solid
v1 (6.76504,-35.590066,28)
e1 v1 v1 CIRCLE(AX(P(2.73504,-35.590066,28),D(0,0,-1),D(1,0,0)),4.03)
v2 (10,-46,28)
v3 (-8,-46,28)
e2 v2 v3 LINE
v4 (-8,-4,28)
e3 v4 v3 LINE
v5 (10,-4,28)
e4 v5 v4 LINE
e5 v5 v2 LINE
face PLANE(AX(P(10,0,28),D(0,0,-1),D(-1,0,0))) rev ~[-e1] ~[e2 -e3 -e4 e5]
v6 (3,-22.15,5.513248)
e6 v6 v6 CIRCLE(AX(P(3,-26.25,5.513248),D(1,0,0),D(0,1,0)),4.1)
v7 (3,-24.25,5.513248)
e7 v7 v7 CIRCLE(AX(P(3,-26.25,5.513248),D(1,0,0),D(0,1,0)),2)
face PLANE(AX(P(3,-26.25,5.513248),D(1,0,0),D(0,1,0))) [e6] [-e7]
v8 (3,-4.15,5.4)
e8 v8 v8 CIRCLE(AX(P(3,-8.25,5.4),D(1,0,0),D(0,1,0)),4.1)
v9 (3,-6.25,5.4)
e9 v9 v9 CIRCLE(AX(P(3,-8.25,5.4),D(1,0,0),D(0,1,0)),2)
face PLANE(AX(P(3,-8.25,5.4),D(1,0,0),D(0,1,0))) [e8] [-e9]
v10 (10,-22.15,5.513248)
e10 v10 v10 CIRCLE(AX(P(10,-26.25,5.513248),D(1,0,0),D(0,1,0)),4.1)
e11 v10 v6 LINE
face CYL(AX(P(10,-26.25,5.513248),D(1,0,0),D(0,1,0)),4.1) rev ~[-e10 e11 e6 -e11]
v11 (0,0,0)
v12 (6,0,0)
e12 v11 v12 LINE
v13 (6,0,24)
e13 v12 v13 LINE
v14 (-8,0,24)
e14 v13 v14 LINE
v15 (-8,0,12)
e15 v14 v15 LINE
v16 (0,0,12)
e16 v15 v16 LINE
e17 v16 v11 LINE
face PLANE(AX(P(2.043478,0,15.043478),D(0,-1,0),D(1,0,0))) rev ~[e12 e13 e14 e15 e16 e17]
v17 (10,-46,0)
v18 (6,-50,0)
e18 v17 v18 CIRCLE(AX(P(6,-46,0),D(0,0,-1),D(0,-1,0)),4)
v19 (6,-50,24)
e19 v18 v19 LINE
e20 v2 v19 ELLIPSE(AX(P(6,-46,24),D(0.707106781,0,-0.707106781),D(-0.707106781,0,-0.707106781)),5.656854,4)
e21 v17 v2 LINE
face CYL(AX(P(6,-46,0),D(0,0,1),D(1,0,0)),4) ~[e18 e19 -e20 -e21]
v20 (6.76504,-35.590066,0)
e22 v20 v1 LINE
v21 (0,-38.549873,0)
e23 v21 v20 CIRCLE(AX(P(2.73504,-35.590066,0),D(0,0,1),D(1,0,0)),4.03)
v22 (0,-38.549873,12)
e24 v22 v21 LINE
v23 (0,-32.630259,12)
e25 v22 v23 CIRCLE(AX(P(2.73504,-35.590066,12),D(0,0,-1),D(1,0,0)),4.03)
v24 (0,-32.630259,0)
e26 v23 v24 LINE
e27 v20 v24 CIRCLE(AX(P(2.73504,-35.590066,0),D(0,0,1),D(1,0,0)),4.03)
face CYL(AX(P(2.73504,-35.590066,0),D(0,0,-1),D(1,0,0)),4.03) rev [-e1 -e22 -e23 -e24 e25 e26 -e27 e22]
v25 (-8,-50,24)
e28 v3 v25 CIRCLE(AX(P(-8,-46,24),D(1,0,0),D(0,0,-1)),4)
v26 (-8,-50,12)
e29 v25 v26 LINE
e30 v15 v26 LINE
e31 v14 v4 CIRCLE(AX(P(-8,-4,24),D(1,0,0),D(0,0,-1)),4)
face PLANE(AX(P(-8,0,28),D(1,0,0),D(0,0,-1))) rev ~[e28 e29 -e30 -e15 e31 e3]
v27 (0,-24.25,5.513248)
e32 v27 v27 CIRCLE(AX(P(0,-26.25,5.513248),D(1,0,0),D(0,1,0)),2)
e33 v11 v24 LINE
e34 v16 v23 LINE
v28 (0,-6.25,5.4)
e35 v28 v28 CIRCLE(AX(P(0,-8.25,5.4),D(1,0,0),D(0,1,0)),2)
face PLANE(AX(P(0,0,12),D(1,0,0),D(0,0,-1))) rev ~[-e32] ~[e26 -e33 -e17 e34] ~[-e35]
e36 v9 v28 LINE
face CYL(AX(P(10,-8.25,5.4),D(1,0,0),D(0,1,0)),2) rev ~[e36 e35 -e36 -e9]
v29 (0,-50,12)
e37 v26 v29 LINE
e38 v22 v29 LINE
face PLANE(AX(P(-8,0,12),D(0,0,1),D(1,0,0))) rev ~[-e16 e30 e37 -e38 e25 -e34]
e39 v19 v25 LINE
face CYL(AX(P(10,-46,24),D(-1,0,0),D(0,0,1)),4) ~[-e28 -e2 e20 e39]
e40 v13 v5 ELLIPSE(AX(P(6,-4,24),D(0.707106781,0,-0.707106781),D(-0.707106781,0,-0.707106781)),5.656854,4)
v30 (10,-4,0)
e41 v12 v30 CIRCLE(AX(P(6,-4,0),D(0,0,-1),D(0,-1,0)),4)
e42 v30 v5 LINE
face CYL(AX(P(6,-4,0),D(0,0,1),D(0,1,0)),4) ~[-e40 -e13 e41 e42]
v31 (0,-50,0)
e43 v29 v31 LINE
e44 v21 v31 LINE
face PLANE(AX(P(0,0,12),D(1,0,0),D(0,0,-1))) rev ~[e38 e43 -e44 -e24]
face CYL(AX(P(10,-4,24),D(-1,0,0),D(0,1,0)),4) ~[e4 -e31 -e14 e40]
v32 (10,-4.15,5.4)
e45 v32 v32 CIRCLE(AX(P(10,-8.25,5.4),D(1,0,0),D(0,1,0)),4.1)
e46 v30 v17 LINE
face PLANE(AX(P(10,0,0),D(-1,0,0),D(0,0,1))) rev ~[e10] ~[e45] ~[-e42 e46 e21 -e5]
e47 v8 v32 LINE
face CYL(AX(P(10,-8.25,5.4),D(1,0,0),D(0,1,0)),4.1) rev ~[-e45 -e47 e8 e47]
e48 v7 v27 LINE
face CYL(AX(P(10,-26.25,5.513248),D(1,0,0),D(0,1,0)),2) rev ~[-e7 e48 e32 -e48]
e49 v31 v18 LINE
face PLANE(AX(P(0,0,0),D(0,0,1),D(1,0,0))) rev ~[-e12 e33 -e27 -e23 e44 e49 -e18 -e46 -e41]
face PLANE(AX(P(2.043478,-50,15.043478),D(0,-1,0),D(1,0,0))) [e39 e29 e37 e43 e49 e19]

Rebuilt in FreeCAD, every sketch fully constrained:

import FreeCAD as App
import Part
import Sketcher
from FreeCAD import Vector


def edges_at(feature, points):
    """Names of the edges that pass closest to the given points."""
    edges = feature.Shape.Edges
    near = lambda p: min(range(len(edges)), key=lambda i: edges[i].distToShape(Part.Vertex(*p))[0])
    return sorted({f"Edge{near(p) + 1}" for p in points})

doc = App.newDocument("Part")
params = doc.addObject("Spreadsheet::Sheet", "Params")
for row, (alias, value) in enumerate([
    ("sketch1_width", "10 mm"),
    ("sketch1_width2", "18 mm"),
    ("sketch1_height", "12 mm"),
    ("sketch1_height2", "28 mm"),
    ("pad1_length", "50 mm"),
    ("sketch2_diameter", "4 mm"),
    ("pocket1_length", "25 mm"),
    ("sketch3_diameter", "8.06 mm"),
    ("sketch4_diameter", "4 mm"),
    ("sketch4_diameter2", "8.2 mm"),
    ("pocket3_length", "14 mm"),
    ("fillet_radius", "4 mm"),
], start=1):
    params.set(f"A{row}", alias)
    params.set(f"B{row}", "=" + value)
    params.setAlias(f"B{row}", alias)

body = doc.addObject("PartDesign::Body", "Body")

sketch1 = doc.addObject("Sketcher::SketchObject", "Sketch")
body.addObject(sketch1)
sketch1.AttachmentSupport = (doc.XZ_Plane, [""])
sketch1.MapMode = "FlatFace"
sketch1.addGeometry(Part.LineSegment(Vector(0, 12, 0), Vector(0, 0, 0)), False)
sketch1.addGeometry(Part.LineSegment(Vector(0, 0, 0), Vector(10, 0, 0)), False)
sketch1.addGeometry(Part.LineSegment(Vector(10, 0, 0), Vector(10, 28, 0)), False)
sketch1.addGeometry(Part.LineSegment(Vector(10, 28, 0), Vector(-8, 28, 0)), False)
sketch1.addGeometry(Part.LineSegment(Vector(-8, 28, 0), Vector(-8, 12, 0)), False)
sketch1.addGeometry(Part.LineSegment(Vector(-8, 12, 0), Vector(0, 12, 0)), False)
sketch1.addConstraint(Sketcher.Constraint("Coincident", 0, 2, 1, 1))
sketch1.addConstraint(Sketcher.Constraint("Coincident", 1, 2, 2, 1))
sketch1.addConstraint(Sketcher.Constraint("Coincident", 2, 2, 3, 1))
sketch1.addConstraint(Sketcher.Constraint("Coincident", 3, 2, 4, 1))
sketch1.addConstraint(Sketcher.Constraint("Coincident", 4, 2, 5, 1))
sketch1.addConstraint(Sketcher.Constraint("Coincident", 5, 2, 0, 1))
sketch1.addConstraint(Sketcher.Constraint("Vertical", 0))
sketch1.addConstraint(Sketcher.Constraint("Horizontal", 1))
sketch1.addConstraint(Sketcher.Constraint("Vertical", 2))
sketch1.addConstraint(Sketcher.Constraint("Horizontal", 3))
sketch1.addConstraint(Sketcher.Constraint("Vertical", 4))
sketch1.addConstraint(Sketcher.Constraint("Horizontal", 5))
sketch1.addConstraint(Sketcher.Constraint("Coincident", 0, 2, -1, 1))
sketch1.addConstraint(Sketcher.Constraint("DistanceX", 1, 1, 1, 2, 10.0))
sketch1.addConstraint(Sketcher.Constraint("DistanceX", 3, 2, 3, 1, 18.0))
sketch1.addConstraint(Sketcher.Constraint("DistanceY", 0, 2, 0, 1, 12.0))
sketch1.addConstraint(Sketcher.Constraint("DistanceY", 2, 1, 2, 2, 28.0))
sketch1.setExpression("Constraints[13]", "Params.sketch1_width")
sketch1.setExpression("Constraints[14]", "Params.sketch1_width2")
sketch1.setExpression("Constraints[15]", "Params.sketch1_height")
sketch1.setExpression("Constraints[16]", "Params.sketch1_height2")
pad1 = doc.addObject("PartDesign::Pad", "Pad")
body.addObject(pad1)
pad1.Profile = sketch1
pad1.setExpression("Length", "Params.pad1_length")

sketch2 = doc.addObject("Sketcher::SketchObject", "Sketch001")
body.addObject(sketch2)
sketch2.AttachmentSupport = (doc.YZ_Plane, [""])
sketch2.MapMode = "FlatFace"
sketch2.AttachmentOffset = App.Placement(Vector(0, 0, 10), App.Rotation())
sketch2.addGeometry(Part.Circle(Vector(-26.2, 5.5, 0), Vector(0, 0, 1), 2), False)
sketch2.addGeometry(Part.Circle(Vector(-8.2, 5.4, 0), Vector(0, 0, 1), 2), False)
sketch2.addConstraint(Sketcher.Constraint("Equal", 0, 1))
sketch2.addConstraint(Sketcher.Constraint("Diameter", 0, 4.0))
sketch2.addConstraint(Sketcher.Constraint("DistanceX", 0, 3, 1, 3, 18.0))
sketch2.addConstraint(Sketcher.Constraint("DistanceY", -1, 1, 1, 3, 5.4))
sketch2.addConstraint(Sketcher.Constraint("DistanceX", 0, 3, -1, 1, 26.25))
sketch2.addConstraint(Sketcher.Constraint("DistanceY", -1, 1, 0, 3, 5.513248))
sketch2.setExpression("Constraints[1]", "Params.sketch2_diameter")
pocket1 = doc.addObject("PartDesign::Pocket", "Pocket")
body.addObject(pocket1)
pocket1.Profile = sketch2
pocket1.setExpression("Length", "Params.pocket1_length")

sketch3 = doc.addObject("Sketcher::SketchObject", "Sketch002")
body.addObject(sketch3)
sketch3.AttachmentSupport = (doc.XY_Plane, [""])
sketch3.MapMode = "FlatFace"
sketch3.addGeometry(Part.Circle(Vector(2.7, -35.6, 0), Vector(0, 0, 1), 4), False)
sketch3.addConstraint(Sketcher.Constraint("Diameter", 0, 8.06))
sketch3.addConstraint(Sketcher.Constraint("DistanceX", -1, 1, 0, 3, 2.73504))
sketch3.addConstraint(Sketcher.Constraint("DistanceY", 0, 3, -1, 1, 35.590066))
sketch3.setExpression("Constraints[0]", "Params.sketch3_diameter")
pocket2 = doc.addObject("PartDesign::Pocket", "Pocket001")
body.addObject(pocket2)
pocket2.Profile = sketch3
pocket2.Type = "ThroughAll"
pocket2.Midplane = True

sketch4 = doc.addObject("Sketcher::SketchObject", "Sketch003")
body.addObject(sketch4)
sketch4.AttachmentSupport = (doc.YZ_Plane, [""])
sketch4.MapMode = "FlatFace"
sketch4.AttachmentOffset = App.Placement(Vector(0, 0, 10), App.Rotation())
sketch4.addGeometry(Part.Circle(Vector(-26.2, 5.5, 0), Vector(0, 0, 1), 4.1), False)
sketch4.addGeometry(Part.Circle(Vector(-26.2, 5.5, 0), Vector(0, 0, 1), 2), False)
sketch4.addGeometry(Part.Circle(Vector(-8.2, 5.4, 0), Vector(0, 0, 1), 4.1), False)
sketch4.addGeometry(Part.Circle(Vector(-8.2, 5.4, 0), Vector(0, 0, 1), 2), False)
sketch4.addConstraint(Sketcher.Constraint("Coincident", 1, 3, 0, 3))
sketch4.addConstraint(Sketcher.Constraint("Coincident", 3, 3, 2, 3))
sketch4.addConstraint(Sketcher.Constraint("Equal", 0, 2))
sketch4.addConstraint(Sketcher.Constraint("Equal", 1, 3))
sketch4.addConstraint(Sketcher.Constraint("Diameter", 1, 4.0))
sketch4.addConstraint(Sketcher.Constraint("Diameter", 0, 8.2))
sketch4.addConstraint(Sketcher.Constraint("DistanceX", 0, 3, 2, 3, 18.0))
sketch4.addConstraint(Sketcher.Constraint("DistanceY", -1, 1, 2, 3, 5.4))
sketch4.addConstraint(Sketcher.Constraint("DistanceX", 0, 3, -1, 1, 26.25))
sketch4.addConstraint(Sketcher.Constraint("DistanceY", -1, 1, 0, 3, 5.513248))
sketch4.setExpression("Constraints[4]", "Params.sketch4_diameter")
sketch4.setExpression("Constraints[5]", "Params.sketch4_diameter2")
pocket3 = doc.addObject("PartDesign::Pocket", "Pocket002")
body.addObject(pocket3)
pocket3.Profile = sketch4
pocket3.setExpression("Length", "Params.pocket3_length")
pocket3.Midplane = True
doc.recompute()

fillet = doc.addObject("PartDesign::Fillet", "Fillet")
body.addObject(fillet)
fillet.Base = (pocket3, edges_at(pocket3, [
    (1, -50, 28),
    (1, 0, 28),
    (10, -50, 14),
    (10, 0, 14),
]))
fillet.setExpression("Radius", "Params.fillet_radius")

doc.recompute()
